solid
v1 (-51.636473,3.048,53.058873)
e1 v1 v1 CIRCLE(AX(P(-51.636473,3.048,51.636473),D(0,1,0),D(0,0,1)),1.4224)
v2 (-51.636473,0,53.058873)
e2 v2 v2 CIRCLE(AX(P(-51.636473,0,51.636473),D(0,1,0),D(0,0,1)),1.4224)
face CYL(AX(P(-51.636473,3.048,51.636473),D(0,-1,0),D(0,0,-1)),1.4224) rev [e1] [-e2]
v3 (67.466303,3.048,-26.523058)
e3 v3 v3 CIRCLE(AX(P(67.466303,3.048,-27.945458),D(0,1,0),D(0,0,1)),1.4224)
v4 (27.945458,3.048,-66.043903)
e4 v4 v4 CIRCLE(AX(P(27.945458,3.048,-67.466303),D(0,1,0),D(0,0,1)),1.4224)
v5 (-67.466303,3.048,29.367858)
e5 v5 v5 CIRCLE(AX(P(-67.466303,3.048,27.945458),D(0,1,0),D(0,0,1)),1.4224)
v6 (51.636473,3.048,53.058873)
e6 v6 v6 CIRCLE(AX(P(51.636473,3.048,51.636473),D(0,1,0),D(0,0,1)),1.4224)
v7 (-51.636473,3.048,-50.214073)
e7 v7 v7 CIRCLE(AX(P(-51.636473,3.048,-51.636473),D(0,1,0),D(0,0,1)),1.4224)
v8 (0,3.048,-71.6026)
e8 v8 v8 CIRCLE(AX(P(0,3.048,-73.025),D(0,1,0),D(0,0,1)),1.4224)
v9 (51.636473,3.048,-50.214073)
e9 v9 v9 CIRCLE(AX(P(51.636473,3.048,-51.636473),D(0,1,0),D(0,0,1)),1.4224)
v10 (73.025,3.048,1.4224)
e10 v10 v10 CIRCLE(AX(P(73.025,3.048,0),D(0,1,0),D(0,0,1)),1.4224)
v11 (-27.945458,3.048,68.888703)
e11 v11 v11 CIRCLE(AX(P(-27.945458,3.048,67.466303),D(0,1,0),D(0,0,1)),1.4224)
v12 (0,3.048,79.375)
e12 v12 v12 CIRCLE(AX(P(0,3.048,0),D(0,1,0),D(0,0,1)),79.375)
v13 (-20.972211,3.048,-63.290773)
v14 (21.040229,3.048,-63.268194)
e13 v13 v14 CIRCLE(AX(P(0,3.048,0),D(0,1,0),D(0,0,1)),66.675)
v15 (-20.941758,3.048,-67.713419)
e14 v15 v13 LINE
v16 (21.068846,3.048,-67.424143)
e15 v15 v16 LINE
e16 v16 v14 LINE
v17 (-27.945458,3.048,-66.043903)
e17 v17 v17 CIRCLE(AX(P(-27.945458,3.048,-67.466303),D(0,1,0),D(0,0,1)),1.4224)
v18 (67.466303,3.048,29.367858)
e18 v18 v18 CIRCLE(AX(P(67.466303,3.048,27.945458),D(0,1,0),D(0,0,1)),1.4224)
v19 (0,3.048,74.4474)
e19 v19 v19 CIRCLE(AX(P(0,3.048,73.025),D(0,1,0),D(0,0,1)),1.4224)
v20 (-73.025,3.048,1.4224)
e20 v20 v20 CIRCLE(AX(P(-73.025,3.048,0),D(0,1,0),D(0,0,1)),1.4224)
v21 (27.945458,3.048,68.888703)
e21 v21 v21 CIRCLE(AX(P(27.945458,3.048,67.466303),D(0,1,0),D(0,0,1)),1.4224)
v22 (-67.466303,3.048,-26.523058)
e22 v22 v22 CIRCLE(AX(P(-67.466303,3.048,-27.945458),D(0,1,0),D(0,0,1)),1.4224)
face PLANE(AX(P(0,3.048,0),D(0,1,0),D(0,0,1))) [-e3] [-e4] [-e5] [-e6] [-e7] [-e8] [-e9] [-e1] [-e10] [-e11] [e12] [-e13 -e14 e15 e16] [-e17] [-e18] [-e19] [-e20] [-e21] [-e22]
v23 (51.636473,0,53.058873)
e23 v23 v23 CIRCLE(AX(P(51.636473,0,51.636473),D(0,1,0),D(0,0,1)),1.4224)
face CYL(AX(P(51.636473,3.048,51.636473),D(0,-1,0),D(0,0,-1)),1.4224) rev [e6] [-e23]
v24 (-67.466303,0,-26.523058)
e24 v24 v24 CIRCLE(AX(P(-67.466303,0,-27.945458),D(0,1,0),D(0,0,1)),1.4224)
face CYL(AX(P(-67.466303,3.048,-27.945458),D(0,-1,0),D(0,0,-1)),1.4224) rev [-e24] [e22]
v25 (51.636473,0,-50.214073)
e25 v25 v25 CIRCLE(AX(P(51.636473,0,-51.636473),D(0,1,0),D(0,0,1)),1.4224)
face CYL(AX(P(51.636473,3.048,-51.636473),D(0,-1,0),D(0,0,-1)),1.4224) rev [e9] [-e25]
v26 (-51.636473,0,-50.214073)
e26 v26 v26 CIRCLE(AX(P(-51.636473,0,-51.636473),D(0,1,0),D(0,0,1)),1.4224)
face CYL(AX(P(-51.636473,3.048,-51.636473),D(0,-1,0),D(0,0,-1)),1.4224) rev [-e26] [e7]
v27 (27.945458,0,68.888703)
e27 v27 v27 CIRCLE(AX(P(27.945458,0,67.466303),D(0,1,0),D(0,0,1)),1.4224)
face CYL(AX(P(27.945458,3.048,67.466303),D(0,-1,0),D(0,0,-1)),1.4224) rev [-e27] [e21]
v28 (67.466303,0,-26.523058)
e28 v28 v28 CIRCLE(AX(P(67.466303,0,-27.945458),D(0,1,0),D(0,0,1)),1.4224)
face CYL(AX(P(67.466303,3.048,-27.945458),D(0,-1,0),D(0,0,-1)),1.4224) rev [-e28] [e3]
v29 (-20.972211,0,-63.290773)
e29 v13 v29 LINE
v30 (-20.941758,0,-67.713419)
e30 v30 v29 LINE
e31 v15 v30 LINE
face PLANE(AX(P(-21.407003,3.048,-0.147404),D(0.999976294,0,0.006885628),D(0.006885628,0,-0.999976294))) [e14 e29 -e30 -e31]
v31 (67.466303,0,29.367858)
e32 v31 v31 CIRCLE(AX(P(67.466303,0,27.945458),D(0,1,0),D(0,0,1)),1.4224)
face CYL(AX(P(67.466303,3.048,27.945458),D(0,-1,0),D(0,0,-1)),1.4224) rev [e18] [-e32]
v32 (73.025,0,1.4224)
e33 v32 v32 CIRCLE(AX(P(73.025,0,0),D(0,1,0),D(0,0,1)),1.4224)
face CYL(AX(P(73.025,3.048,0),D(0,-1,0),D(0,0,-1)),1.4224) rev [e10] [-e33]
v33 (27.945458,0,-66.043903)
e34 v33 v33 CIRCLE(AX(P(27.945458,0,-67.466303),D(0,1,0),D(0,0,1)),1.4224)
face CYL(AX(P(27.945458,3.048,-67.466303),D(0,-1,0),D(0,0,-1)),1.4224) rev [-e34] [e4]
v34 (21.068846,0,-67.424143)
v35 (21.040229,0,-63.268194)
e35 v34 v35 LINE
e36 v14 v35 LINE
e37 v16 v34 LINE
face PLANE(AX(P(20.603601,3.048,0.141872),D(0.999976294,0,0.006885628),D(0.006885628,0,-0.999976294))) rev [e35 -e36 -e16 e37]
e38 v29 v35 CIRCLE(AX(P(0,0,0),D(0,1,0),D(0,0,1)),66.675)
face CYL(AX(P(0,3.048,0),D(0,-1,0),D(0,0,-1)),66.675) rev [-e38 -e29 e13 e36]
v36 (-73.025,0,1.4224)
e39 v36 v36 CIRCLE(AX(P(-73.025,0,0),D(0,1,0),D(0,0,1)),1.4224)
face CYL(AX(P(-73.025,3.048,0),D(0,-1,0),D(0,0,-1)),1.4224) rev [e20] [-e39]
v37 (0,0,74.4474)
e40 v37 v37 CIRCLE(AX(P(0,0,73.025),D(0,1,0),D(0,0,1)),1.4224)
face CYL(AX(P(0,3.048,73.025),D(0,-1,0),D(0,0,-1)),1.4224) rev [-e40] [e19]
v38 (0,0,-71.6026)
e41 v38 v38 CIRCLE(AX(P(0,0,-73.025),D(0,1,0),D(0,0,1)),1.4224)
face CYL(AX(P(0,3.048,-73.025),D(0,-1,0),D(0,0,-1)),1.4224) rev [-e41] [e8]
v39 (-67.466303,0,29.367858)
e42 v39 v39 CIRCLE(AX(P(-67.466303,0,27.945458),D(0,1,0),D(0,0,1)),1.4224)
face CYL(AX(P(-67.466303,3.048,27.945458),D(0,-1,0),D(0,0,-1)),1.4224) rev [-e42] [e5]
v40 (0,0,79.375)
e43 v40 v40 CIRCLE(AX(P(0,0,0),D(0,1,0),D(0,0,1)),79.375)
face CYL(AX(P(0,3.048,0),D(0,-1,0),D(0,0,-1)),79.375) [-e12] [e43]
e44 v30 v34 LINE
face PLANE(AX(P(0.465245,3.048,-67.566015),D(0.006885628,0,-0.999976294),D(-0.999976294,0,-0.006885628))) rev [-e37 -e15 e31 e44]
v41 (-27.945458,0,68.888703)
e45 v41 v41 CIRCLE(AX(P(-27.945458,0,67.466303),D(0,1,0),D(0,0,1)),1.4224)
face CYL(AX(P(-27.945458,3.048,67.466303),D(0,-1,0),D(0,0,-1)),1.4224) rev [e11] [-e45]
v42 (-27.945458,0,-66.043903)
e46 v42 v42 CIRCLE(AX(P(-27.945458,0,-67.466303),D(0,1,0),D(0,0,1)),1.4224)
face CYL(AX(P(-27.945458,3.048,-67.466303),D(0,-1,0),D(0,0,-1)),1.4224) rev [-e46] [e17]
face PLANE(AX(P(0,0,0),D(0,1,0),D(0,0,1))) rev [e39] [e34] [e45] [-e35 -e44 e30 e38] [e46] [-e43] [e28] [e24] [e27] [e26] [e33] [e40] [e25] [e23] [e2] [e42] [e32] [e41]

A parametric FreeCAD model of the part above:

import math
import FreeCAD as App
import Part
import Sketcher
Q = App.Units.Quantity

doc = App.newDocument("Part")
body = doc.addObject("PartDesign::Body", "Body")

sketch1 = doc.addObject("Sketcher::SketchObject", "Sketch")
body.addObject(sketch1)
sketch1.AttachmentSupport = (doc.XZ_Plane, [""])
sketch1.MapMode = "FlatFace"
sketch1.addGeometry([
    Part.Circle(App.Vector(0, 0, 0), App.Vector(0, 0, 1), 79.4),
    Part.Circle(App.Vector(-51.6, 51.6, 0), App.Vector(0, 0, 1), 1.4),
    Part.Circle(App.Vector(-27.9, 67.5, 0), App.Vector(0, 0, 1), 1.4),
    Part.Circle(App.Vector(-67.5, 27.9, 0), App.Vector(0, 0, 1), 1.4),
    Part.Circle(App.Vector(0, 73, 0), App.Vector(0, 0, 1), 1.4),
    Part.Circle(App.Vector(27.9, 67.5, 0), App.Vector(0, 0, 1), 1.4),
    Part.Circle(App.Vector(51.6, 51.6, 0), App.Vector(0, 0, 1), 1.4),
    Part.Circle(App.Vector(67.5, 27.9, 0), App.Vector(0, 0, 1), 1.4),
    Part.Circle(App.Vector(-73, 0, 0), App.Vector(0, 0, 1), 1.4),
    Part.Circle(App.Vector(-67.5, -27.9, 0), App.Vector(0, 0, 1), 1.4),
    Part.Circle(App.Vector(-51.6, -51.6, 0), App.Vector(0, 0, 1), 1.4),
    Part.Circle(App.Vector(-27.9, -67.5, 0), App.Vector(0, 0, 1), 1.4),
    Part.Circle(App.Vector(0, 0, 0), App.Vector(0, 0, 1), 66.7),
    Part.Circle(App.Vector(73, 0, 0), App.Vector(0, 0, 1), 1.4),
    Part.Circle(App.Vector(67.5, -27.9, 0), App.Vector(0, 0, 1), 1.4),
    Part.Circle(App.Vector(0, -73, 0), App.Vector(0, 0, 1), 1.4),
    Part.Circle(App.Vector(27.9, -67.5, 0), App.Vector(0, 0, 1), 1.4),
    Part.Circle(App.Vector(51.6, -51.6, 0), App.Vector(0, 0, 1), 1.4),
], False)
sketch1.addConstraint([
    Sketcher.Constraint("Coincident", 0, 3, -1, 1),
    Sketcher.Constraint("Coincident", 12, 3, -1, 1),
    Sketcher.Constraint("Equal", 1, 2),
    Sketcher.Constraint("Equal", 2, 3),
    Sketcher.Constraint("Equal", 3, 4),
    Sketcher.Constraint("Equal", 4, 5),
    Sketcher.Constraint("Equal", 5, 6),
    Sketcher.Constraint("Equal", 6, 7),
    Sketcher.Constraint("Equal", 7, 8),
    Sketcher.Constraint("Equal", 8, 9),
    Sketcher.Constraint("Equal", 9, 10),
    Sketcher.Constraint("Equal", 10, 11),
    Sketcher.Constraint("Equal", 11, 13),
    Sketcher.Constraint("Equal", 13, 14),
    Sketcher.Constraint("Equal", 14, 15),
    Sketcher.Constraint("Equal", 15, 16),
    Sketcher.Constraint("Equal", 16, 17),
    Sketcher.Constraint("Symmetric", 7, 3, 9, 3, -1, 1),
    Sketcher.Constraint("Symmetric", 6, 3, 10, 3, -1, 1),
    Sketcher.Constraint("Symmetric", 5, 3, 11, 3, -1, 1),
    Sketcher.Constraint("Symmetric", 8, 3, 13, 3, -1, 1),
    Sketcher.Constraint("Symmetric", 3, 3, 14, 3, -1, 1),
    Sketcher.Constraint("Symmetric", 4, 3, 15, 3, -1, 1),
    Sketcher.Constraint("Symmetric", 2, 3, 16, 3, -1, 1),
    Sketcher.Constraint("Symmetric", 1, 3, 17, 3, -1, 1),
    Sketcher.Constraint("Symmetric", 2, 3, 5, 3, -2),
    Sketcher.Constraint("Symmetric", 1, 3, 6, 3, -2),
    Sketcher.Constraint("Symmetric", 3, 3, 7, 3, -2),
    Sketcher.Constraint("PointOnObject", 4, 3, -2),
    Sketcher.Constraint("PointOnObject", 8, 3, -1),
    Sketcher.Constraint("Diameter", 0, Q("6.25 in")),
    Sketcher.Constraint("Diameter", 12, Q("5.25 in")),
    Sketcher.Constraint("Diameter", 1, Q("0.112 in")),
    Sketcher.Constraint("DistanceY", -1, 1, 4, 3, Q("2.875 in")),
    Sketcher.Constraint("DistanceX", 8, 3, -1, 1, Q("2.875 in")),
    Sketcher.Constraint("DistanceY", 1, 3, 2, 3, 15.82983),
    Sketcher.Constraint("DistanceX", 3, 3, 1, 3, 15.82983),
    Sketcher.Constraint("DistanceX", 1, 3, 5, 3, 79.58193),
    Sketcher.Constraint("DistanceY", 9, 3, 1, 3, 79.58193),
    Sketcher.Constraint("DistanceX", 1, 3, -1, 1, 51.636473),
    Sketcher.Constraint("DistanceY", -1, 1, 1, 3, 51.636473),
])
pad1 = doc.addObject("PartDesign::Pad", "Pad")
body.addObject(pad1)
pad1.Profile = sketch1
pad1.Length = Q("0.12 in")
pad1.Reversed = True

sketch2 = doc.addObject("Sketcher::SketchObject", "Sketch001")
body.addObject(sketch2)
sketch2.AttachmentSupport = (doc.XZ_Plane, [""])
sketch2.MapMode = "FlatFace"
sketch2.addGeometry([
    Part.LineSegment(App.Vector(-21, -63.3, 0), App.Vector(-20.9, -67.7, 0)),
    Part.LineSegment(App.Vector(-20.9, -67.7, 0), App.Vector(21.1, -67.4, 0)),
    Part.LineSegment(App.Vector(21.1, -67.4, 0), App.Vector(21, -63.3, 0)),
    Part.ArcOfCircle(Part.Circle(App.Vector(0, 0, 0), App.Vector(0, 0, 1), 66.7), math.radians(-108), math.radians(-72)),
], False)
sketch2.addConstraint([
    Sketcher.Constraint("Coincident", 0, 2, 1, 1),
    Sketcher.Constraint("Coincident", 1, 2, 2, 1),
    Sketcher.Constraint("Coincident", 2, 2, 3, 2),
    Sketcher.Constraint("Coincident", 3, 1, 0, 1),
    Sketcher.Constraint("Coincident", 3, 3, -1, 1),
    Sketcher.Constraint("Perpendicular", 0, 1),
    Sketcher.Constraint("Perpendicular", 1, 2),
    Sketcher.Constraint("Radius", 3, Q("2.625 in")),
    Sketcher.Constraint("Distance", 1, Q("1.654 in")),
    Sketcher.Constraint("Distance", 0, 4.422751),
    Sketcher.Constraint("DistanceX", 0, 2, -1, 1, 20.941758),
    Sketcher.Constraint("DistanceY", 0, 2, -1, 1, 67.713419),
])
pocket1 = doc.addObject("PartDesign::Pocket", "Pocket")
body.addObject(pocket1)
pocket1.Profile = sketch2
pocket1.Type = "ThroughAll"

doc.recompute()
